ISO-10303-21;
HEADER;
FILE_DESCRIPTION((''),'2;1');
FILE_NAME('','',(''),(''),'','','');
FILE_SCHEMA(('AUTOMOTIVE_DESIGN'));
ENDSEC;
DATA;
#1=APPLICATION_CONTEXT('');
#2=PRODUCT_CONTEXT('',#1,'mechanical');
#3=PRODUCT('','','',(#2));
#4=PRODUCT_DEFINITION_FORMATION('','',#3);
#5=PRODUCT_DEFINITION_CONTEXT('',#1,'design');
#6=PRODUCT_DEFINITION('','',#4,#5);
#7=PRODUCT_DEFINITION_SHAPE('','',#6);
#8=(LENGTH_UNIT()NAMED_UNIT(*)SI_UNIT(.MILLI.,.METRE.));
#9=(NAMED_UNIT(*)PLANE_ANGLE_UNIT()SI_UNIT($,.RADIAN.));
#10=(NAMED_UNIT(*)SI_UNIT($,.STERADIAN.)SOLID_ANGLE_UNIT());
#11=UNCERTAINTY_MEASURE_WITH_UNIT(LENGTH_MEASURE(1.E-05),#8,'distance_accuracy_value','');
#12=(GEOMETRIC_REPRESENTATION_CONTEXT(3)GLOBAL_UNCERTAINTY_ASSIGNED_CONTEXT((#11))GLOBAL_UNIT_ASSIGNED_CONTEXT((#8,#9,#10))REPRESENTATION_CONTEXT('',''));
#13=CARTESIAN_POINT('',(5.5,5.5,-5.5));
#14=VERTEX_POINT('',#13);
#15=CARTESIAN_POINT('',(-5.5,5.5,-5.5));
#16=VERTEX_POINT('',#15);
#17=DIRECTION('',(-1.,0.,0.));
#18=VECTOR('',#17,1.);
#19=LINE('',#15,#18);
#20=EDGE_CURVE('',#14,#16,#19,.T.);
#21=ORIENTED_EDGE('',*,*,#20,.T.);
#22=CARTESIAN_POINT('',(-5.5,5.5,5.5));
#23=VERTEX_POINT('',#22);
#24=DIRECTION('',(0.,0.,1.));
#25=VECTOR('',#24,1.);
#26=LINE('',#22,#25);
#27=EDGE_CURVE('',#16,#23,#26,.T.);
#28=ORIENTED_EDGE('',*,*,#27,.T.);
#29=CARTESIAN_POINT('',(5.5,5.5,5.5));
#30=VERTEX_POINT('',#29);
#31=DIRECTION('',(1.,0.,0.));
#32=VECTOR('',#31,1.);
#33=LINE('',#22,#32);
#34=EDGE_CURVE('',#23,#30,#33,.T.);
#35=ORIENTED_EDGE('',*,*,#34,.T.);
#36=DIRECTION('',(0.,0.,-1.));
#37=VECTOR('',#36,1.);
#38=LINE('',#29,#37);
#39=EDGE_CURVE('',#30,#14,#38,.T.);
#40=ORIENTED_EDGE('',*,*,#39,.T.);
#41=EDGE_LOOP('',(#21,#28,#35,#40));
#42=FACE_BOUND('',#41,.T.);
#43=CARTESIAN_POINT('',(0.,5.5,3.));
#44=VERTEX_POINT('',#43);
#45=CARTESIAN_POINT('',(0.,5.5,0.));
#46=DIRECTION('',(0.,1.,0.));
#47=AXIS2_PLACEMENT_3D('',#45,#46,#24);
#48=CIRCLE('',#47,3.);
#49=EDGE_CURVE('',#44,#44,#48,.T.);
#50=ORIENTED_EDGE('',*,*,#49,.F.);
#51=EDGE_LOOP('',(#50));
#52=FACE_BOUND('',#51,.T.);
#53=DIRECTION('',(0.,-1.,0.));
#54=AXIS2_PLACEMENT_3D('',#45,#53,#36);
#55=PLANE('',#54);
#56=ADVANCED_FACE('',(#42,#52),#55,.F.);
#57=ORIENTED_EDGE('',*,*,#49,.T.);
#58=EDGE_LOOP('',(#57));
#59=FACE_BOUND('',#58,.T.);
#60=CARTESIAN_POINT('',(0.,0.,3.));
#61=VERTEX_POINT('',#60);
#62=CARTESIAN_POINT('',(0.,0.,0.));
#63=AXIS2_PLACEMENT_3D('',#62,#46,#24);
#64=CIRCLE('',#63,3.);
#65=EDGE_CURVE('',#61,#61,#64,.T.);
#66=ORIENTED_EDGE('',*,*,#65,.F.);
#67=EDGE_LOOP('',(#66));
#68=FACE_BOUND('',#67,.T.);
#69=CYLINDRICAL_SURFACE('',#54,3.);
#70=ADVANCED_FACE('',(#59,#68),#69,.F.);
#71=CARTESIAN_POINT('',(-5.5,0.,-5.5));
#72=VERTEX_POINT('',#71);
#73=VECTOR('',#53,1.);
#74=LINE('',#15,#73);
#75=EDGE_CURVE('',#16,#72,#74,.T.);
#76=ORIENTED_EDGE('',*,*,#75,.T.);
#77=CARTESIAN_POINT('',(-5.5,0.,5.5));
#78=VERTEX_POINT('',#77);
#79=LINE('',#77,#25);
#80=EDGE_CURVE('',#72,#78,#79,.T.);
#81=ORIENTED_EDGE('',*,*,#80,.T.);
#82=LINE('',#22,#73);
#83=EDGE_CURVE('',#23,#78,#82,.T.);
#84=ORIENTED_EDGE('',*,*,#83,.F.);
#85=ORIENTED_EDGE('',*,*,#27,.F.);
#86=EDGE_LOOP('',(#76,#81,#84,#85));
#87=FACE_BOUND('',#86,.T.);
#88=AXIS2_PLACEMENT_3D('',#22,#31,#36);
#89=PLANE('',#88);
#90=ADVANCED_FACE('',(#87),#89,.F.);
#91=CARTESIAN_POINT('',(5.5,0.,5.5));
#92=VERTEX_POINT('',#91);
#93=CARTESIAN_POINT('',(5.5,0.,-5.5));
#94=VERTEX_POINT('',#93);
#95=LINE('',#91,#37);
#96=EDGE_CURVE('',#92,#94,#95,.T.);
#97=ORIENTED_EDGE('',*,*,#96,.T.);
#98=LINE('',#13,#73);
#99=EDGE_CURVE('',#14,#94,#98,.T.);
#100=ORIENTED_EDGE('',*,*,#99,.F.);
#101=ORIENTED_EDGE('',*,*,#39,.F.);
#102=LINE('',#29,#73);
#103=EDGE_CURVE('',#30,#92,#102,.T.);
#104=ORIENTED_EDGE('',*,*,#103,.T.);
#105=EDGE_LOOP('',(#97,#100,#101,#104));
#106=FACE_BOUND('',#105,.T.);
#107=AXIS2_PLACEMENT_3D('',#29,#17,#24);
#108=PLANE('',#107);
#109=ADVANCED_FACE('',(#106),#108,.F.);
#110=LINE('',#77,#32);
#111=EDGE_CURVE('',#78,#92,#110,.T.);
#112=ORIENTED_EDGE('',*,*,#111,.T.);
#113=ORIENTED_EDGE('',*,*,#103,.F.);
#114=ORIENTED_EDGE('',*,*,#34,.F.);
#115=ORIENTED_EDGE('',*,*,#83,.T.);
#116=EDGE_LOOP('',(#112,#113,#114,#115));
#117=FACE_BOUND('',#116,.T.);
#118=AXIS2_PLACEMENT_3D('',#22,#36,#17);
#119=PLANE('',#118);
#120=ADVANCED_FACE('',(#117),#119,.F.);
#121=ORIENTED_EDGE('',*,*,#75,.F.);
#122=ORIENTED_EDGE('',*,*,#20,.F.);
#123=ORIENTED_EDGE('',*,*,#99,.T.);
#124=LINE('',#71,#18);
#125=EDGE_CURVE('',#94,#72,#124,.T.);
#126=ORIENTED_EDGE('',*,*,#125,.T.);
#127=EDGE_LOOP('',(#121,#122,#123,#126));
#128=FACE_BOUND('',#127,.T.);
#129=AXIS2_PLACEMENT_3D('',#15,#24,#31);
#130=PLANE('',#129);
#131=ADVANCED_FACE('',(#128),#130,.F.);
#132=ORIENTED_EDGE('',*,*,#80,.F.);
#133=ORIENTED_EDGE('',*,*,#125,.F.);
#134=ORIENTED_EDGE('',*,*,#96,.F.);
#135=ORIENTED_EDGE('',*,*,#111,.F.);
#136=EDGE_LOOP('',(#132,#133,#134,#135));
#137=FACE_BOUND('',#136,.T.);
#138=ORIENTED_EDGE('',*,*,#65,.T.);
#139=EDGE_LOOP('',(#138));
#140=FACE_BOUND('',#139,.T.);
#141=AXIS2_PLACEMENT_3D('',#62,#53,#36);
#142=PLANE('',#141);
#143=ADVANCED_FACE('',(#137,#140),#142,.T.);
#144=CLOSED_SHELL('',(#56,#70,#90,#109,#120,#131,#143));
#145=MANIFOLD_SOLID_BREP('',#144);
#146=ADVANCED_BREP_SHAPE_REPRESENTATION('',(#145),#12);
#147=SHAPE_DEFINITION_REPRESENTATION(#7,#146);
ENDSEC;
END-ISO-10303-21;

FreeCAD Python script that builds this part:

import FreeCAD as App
import Part
import Sketcher
from FreeCAD import Vector

doc = App.newDocument("Part")
params = doc.addObject("Spreadsheet::Sheet", "Params")
for row, (alias, value) in enumerate([
    ("sketch1_diameter", "6 mm"),
    ("sketch1_width", "11 mm"),
    ("pad1_length", "5.5 mm"),
], start=1):
    params.set(f"A{row}", alias)
    params.set(f"B{row}", "=" + value)
    params.setAlias(f"B{row}", alias)

body = doc.addObject("PartDesign::Body", "Body")

sketch1 = doc.addObject("Sketcher::SketchObject", "Sketch")
body.addObject(sketch1)
sketch1.AttachmentSupport = (doc.XZ_Plane, [""])
sketch1.MapMode = "FlatFace"
sketch1.addGeometry([
    Part.LineSegment(Vector(-5.5, -5.5, 0), Vector(-5.5, 5.5, 0)),
    Part.LineSegment(Vector(-5.5, 5.5, 0), Vector(5.5, 5.5, 0)),
    Part.LineSegment(Vector(5.5, 5.5, 0), Vector(5.5, -5.5, 0)),
    Part.LineSegment(Vector(5.5, -5.5, 0), Vector(-5.5, -5.5, 0)),
    Part.Circle(Vector(0, 0, 0), Vector(0, 0, 1), 3),
], False)
sketch1.addConstraint([
    Sketcher.Constraint("Coincident", 0, 2, 1, 1),
    Sketcher.Constraint("Coincident", 1, 2, 2, 1),
    Sketcher.Constraint("Coincident", 2, 2, 3, 1),
    Sketcher.Constraint("Coincident", 3, 2, 0, 1),
    Sketcher.Constraint("Vertical", 0),
    Sketcher.Constraint("Horizontal", 1),
    Sketcher.Constraint("Vertical", 2),
    Sketcher.Constraint("Horizontal", 3),
    Sketcher.Constraint("Coincident", 4, 3, -1, 1),
    Sketcher.Constraint("Symmetric", 0, 2, 2, 2, -1, 1),
    Sketcher.Constraint("Equal", 3, 0),
    Sketcher.Constraint("Diameter", 4, 6.0),
    Sketcher.Constraint("DistanceX", 1, 1, 1, 2, 11.0),
])
sketch1.setExpression("Constraints[11]", "Params.sketch1_diameter")
sketch1.setExpression("Constraints[12]", "Params.sketch1_width")
pad1 = doc.addObject("PartDesign::Pad", "Pad")
body.addObject(pad1)
pad1.Profile = sketch1
pad1.setExpression("Length", "Params.pad1_length")
pad1.Reversed = True

doc.recompute()
